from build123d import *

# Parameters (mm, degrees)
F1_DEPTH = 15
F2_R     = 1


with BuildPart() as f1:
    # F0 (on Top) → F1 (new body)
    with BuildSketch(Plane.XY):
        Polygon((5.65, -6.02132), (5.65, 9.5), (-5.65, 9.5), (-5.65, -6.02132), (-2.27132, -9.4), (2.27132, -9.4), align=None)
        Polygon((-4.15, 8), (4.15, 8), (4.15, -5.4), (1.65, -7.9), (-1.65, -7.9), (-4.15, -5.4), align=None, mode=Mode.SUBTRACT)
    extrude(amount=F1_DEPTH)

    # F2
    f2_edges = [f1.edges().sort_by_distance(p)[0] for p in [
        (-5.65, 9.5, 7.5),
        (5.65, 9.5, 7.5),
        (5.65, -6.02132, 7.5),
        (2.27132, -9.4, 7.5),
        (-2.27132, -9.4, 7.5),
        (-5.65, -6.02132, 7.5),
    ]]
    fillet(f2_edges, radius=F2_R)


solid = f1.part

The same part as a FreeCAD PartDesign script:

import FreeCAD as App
import Part
import Sketcher

V = App.Vector


def edges_at(feature, points):
    """Names of the edges that pass closest to the given points."""
    edges = feature.Shape.Edges
    near = lambda p: min(range(len(edges)), key=lambda i: edges[i].distToShape(Part.Vertex(*p))[0])
    return sorted({f"Edge{near(p) + 1}" for p in points})


def add_polygon(sketch, points):
    """Adds a closed chain of lines whose ends are joined by coincident constraints."""
    first, n = sketch.GeometryCount, len(points)
    for a, b in zip(points, points[1:] + points[:1]):
        sketch.addGeometry(Part.LineSegment(App.Vector(*a, 0), App.Vector(*b, 0)), False)
    for i in range(n):
        sketch.addConstraint(Sketcher.Constraint("Coincident", first + i, 2, first + (i + 1) % n, 1))

doc = App.newDocument("Part")
body = doc.addObject("PartDesign::Body", "Body")

# Sketch on XY plane
sketch1 = doc.addObject("Sketcher::SketchObject", "Sketch")
body.addObject(sketch1)
sketch1.AttachmentSupport = (doc.XY_Plane, [""])
sketch1.MapMode = "FlatFace"
add_polygon(sketch1, [(5.65, -6.02132), (5.65, 9.5), (-5.65, 9.5), (-5.65, -6.02132), (-2.27132, -9.4), (2.27132, -9.4)])  # lines 0-5
add_polygon(sketch1, [(-4.15, -5.4), (-4.15, 8), (4.15, 8), (4.15, -5.4), (1.65, -7.9), (-1.65, -7.9)])  # lines 6-11
sketch1.addConstraint(Sketcher.Constraint("Vertical", 0))
sketch1.addConstraint(Sketcher.Constraint("Horizontal", 1))
sketch1.addConstraint(Sketcher.Constraint("Vertical", 2))
sketch1.addConstraint(Sketcher.Constraint("Horizontal", 4))
sketch1.addConstraint(Sketcher.Constraint("Vertical", 6))
sketch1.addConstraint(Sketcher.Constraint("Horizontal", 7))
sketch1.addConstraint(Sketcher.Constraint("Vertical", 8))
sketch1.addConstraint(Sketcher.Constraint("Horizontal", 10))
sketch1.addConstraint(Sketcher.Constraint("Symmetric", 2, 2, 5, 2, -2))
sketch1.addConstraint(Sketcher.Constraint("Symmetric", 8, 2, 11, 2, -2))
sketch1.addConstraint(Sketcher.Constraint("Perpendicular", 3, 5))
sketch1.addConstraint(Sketcher.Constraint("Parallel", 5, 9))
sketch1.addConstraint(Sketcher.Constraint("Perpendicular", 9, 11))
sketch1.addConstraint(Sketcher.Constraint("Equal", 3, 5))
sketch1.addConstraint(Sketcher.Constraint("DistanceX", 1, 2, 1, 1, 11.3))
sketch1.addConstraint(Sketcher.Constraint("DistanceX", 7, 1, 7, 2, 8.3))
sketch1.addConstraint(Sketcher.Constraint("DistanceX", 10, 2, 10, 1, 3.3))
sketch1.addConstraint(Sketcher.Constraint("DistanceY", 6, 1, 6, 2, 13.4))
sketch1.addConstraint(Sketcher.Constraint("DistanceY", -1, 1, 6, 2, 8.0))
sketch1.addConstraint(Sketcher.Constraint("DistanceY", 4, 2, 8, 2, 4.0))
sketch1.addConstraint(Sketcher.Constraint("DistanceY", -1, 1, 0, 2, 9.5))
sketch1.addConstraint(Sketcher.Constraint("DistanceX", 4, 1, 4, 2, 4.54264))
pad1 = doc.addObject("PartDesign::Pad", "Pad")
body.addObject(pad1)
pad1.Profile = sketch1
pad1.Length = 15
doc.recompute()

fillet = doc.addObject("PartDesign::Fillet", "Fillet")
body.addObject(fillet)
fillet.Base = (pad1, edges_at(pad1, [
    (-5.65, 9.5, 7.5),
    (5.65, 9.5, 7.5),
    (5.65, -6.021, 7.5),
    (2.271, -9.4, 7.5),
    (-2.271, -9.4, 7.5),
    (-5.65, -6.021, 7.5),
]))
fillet.Radius = 1

doc.recompute()
